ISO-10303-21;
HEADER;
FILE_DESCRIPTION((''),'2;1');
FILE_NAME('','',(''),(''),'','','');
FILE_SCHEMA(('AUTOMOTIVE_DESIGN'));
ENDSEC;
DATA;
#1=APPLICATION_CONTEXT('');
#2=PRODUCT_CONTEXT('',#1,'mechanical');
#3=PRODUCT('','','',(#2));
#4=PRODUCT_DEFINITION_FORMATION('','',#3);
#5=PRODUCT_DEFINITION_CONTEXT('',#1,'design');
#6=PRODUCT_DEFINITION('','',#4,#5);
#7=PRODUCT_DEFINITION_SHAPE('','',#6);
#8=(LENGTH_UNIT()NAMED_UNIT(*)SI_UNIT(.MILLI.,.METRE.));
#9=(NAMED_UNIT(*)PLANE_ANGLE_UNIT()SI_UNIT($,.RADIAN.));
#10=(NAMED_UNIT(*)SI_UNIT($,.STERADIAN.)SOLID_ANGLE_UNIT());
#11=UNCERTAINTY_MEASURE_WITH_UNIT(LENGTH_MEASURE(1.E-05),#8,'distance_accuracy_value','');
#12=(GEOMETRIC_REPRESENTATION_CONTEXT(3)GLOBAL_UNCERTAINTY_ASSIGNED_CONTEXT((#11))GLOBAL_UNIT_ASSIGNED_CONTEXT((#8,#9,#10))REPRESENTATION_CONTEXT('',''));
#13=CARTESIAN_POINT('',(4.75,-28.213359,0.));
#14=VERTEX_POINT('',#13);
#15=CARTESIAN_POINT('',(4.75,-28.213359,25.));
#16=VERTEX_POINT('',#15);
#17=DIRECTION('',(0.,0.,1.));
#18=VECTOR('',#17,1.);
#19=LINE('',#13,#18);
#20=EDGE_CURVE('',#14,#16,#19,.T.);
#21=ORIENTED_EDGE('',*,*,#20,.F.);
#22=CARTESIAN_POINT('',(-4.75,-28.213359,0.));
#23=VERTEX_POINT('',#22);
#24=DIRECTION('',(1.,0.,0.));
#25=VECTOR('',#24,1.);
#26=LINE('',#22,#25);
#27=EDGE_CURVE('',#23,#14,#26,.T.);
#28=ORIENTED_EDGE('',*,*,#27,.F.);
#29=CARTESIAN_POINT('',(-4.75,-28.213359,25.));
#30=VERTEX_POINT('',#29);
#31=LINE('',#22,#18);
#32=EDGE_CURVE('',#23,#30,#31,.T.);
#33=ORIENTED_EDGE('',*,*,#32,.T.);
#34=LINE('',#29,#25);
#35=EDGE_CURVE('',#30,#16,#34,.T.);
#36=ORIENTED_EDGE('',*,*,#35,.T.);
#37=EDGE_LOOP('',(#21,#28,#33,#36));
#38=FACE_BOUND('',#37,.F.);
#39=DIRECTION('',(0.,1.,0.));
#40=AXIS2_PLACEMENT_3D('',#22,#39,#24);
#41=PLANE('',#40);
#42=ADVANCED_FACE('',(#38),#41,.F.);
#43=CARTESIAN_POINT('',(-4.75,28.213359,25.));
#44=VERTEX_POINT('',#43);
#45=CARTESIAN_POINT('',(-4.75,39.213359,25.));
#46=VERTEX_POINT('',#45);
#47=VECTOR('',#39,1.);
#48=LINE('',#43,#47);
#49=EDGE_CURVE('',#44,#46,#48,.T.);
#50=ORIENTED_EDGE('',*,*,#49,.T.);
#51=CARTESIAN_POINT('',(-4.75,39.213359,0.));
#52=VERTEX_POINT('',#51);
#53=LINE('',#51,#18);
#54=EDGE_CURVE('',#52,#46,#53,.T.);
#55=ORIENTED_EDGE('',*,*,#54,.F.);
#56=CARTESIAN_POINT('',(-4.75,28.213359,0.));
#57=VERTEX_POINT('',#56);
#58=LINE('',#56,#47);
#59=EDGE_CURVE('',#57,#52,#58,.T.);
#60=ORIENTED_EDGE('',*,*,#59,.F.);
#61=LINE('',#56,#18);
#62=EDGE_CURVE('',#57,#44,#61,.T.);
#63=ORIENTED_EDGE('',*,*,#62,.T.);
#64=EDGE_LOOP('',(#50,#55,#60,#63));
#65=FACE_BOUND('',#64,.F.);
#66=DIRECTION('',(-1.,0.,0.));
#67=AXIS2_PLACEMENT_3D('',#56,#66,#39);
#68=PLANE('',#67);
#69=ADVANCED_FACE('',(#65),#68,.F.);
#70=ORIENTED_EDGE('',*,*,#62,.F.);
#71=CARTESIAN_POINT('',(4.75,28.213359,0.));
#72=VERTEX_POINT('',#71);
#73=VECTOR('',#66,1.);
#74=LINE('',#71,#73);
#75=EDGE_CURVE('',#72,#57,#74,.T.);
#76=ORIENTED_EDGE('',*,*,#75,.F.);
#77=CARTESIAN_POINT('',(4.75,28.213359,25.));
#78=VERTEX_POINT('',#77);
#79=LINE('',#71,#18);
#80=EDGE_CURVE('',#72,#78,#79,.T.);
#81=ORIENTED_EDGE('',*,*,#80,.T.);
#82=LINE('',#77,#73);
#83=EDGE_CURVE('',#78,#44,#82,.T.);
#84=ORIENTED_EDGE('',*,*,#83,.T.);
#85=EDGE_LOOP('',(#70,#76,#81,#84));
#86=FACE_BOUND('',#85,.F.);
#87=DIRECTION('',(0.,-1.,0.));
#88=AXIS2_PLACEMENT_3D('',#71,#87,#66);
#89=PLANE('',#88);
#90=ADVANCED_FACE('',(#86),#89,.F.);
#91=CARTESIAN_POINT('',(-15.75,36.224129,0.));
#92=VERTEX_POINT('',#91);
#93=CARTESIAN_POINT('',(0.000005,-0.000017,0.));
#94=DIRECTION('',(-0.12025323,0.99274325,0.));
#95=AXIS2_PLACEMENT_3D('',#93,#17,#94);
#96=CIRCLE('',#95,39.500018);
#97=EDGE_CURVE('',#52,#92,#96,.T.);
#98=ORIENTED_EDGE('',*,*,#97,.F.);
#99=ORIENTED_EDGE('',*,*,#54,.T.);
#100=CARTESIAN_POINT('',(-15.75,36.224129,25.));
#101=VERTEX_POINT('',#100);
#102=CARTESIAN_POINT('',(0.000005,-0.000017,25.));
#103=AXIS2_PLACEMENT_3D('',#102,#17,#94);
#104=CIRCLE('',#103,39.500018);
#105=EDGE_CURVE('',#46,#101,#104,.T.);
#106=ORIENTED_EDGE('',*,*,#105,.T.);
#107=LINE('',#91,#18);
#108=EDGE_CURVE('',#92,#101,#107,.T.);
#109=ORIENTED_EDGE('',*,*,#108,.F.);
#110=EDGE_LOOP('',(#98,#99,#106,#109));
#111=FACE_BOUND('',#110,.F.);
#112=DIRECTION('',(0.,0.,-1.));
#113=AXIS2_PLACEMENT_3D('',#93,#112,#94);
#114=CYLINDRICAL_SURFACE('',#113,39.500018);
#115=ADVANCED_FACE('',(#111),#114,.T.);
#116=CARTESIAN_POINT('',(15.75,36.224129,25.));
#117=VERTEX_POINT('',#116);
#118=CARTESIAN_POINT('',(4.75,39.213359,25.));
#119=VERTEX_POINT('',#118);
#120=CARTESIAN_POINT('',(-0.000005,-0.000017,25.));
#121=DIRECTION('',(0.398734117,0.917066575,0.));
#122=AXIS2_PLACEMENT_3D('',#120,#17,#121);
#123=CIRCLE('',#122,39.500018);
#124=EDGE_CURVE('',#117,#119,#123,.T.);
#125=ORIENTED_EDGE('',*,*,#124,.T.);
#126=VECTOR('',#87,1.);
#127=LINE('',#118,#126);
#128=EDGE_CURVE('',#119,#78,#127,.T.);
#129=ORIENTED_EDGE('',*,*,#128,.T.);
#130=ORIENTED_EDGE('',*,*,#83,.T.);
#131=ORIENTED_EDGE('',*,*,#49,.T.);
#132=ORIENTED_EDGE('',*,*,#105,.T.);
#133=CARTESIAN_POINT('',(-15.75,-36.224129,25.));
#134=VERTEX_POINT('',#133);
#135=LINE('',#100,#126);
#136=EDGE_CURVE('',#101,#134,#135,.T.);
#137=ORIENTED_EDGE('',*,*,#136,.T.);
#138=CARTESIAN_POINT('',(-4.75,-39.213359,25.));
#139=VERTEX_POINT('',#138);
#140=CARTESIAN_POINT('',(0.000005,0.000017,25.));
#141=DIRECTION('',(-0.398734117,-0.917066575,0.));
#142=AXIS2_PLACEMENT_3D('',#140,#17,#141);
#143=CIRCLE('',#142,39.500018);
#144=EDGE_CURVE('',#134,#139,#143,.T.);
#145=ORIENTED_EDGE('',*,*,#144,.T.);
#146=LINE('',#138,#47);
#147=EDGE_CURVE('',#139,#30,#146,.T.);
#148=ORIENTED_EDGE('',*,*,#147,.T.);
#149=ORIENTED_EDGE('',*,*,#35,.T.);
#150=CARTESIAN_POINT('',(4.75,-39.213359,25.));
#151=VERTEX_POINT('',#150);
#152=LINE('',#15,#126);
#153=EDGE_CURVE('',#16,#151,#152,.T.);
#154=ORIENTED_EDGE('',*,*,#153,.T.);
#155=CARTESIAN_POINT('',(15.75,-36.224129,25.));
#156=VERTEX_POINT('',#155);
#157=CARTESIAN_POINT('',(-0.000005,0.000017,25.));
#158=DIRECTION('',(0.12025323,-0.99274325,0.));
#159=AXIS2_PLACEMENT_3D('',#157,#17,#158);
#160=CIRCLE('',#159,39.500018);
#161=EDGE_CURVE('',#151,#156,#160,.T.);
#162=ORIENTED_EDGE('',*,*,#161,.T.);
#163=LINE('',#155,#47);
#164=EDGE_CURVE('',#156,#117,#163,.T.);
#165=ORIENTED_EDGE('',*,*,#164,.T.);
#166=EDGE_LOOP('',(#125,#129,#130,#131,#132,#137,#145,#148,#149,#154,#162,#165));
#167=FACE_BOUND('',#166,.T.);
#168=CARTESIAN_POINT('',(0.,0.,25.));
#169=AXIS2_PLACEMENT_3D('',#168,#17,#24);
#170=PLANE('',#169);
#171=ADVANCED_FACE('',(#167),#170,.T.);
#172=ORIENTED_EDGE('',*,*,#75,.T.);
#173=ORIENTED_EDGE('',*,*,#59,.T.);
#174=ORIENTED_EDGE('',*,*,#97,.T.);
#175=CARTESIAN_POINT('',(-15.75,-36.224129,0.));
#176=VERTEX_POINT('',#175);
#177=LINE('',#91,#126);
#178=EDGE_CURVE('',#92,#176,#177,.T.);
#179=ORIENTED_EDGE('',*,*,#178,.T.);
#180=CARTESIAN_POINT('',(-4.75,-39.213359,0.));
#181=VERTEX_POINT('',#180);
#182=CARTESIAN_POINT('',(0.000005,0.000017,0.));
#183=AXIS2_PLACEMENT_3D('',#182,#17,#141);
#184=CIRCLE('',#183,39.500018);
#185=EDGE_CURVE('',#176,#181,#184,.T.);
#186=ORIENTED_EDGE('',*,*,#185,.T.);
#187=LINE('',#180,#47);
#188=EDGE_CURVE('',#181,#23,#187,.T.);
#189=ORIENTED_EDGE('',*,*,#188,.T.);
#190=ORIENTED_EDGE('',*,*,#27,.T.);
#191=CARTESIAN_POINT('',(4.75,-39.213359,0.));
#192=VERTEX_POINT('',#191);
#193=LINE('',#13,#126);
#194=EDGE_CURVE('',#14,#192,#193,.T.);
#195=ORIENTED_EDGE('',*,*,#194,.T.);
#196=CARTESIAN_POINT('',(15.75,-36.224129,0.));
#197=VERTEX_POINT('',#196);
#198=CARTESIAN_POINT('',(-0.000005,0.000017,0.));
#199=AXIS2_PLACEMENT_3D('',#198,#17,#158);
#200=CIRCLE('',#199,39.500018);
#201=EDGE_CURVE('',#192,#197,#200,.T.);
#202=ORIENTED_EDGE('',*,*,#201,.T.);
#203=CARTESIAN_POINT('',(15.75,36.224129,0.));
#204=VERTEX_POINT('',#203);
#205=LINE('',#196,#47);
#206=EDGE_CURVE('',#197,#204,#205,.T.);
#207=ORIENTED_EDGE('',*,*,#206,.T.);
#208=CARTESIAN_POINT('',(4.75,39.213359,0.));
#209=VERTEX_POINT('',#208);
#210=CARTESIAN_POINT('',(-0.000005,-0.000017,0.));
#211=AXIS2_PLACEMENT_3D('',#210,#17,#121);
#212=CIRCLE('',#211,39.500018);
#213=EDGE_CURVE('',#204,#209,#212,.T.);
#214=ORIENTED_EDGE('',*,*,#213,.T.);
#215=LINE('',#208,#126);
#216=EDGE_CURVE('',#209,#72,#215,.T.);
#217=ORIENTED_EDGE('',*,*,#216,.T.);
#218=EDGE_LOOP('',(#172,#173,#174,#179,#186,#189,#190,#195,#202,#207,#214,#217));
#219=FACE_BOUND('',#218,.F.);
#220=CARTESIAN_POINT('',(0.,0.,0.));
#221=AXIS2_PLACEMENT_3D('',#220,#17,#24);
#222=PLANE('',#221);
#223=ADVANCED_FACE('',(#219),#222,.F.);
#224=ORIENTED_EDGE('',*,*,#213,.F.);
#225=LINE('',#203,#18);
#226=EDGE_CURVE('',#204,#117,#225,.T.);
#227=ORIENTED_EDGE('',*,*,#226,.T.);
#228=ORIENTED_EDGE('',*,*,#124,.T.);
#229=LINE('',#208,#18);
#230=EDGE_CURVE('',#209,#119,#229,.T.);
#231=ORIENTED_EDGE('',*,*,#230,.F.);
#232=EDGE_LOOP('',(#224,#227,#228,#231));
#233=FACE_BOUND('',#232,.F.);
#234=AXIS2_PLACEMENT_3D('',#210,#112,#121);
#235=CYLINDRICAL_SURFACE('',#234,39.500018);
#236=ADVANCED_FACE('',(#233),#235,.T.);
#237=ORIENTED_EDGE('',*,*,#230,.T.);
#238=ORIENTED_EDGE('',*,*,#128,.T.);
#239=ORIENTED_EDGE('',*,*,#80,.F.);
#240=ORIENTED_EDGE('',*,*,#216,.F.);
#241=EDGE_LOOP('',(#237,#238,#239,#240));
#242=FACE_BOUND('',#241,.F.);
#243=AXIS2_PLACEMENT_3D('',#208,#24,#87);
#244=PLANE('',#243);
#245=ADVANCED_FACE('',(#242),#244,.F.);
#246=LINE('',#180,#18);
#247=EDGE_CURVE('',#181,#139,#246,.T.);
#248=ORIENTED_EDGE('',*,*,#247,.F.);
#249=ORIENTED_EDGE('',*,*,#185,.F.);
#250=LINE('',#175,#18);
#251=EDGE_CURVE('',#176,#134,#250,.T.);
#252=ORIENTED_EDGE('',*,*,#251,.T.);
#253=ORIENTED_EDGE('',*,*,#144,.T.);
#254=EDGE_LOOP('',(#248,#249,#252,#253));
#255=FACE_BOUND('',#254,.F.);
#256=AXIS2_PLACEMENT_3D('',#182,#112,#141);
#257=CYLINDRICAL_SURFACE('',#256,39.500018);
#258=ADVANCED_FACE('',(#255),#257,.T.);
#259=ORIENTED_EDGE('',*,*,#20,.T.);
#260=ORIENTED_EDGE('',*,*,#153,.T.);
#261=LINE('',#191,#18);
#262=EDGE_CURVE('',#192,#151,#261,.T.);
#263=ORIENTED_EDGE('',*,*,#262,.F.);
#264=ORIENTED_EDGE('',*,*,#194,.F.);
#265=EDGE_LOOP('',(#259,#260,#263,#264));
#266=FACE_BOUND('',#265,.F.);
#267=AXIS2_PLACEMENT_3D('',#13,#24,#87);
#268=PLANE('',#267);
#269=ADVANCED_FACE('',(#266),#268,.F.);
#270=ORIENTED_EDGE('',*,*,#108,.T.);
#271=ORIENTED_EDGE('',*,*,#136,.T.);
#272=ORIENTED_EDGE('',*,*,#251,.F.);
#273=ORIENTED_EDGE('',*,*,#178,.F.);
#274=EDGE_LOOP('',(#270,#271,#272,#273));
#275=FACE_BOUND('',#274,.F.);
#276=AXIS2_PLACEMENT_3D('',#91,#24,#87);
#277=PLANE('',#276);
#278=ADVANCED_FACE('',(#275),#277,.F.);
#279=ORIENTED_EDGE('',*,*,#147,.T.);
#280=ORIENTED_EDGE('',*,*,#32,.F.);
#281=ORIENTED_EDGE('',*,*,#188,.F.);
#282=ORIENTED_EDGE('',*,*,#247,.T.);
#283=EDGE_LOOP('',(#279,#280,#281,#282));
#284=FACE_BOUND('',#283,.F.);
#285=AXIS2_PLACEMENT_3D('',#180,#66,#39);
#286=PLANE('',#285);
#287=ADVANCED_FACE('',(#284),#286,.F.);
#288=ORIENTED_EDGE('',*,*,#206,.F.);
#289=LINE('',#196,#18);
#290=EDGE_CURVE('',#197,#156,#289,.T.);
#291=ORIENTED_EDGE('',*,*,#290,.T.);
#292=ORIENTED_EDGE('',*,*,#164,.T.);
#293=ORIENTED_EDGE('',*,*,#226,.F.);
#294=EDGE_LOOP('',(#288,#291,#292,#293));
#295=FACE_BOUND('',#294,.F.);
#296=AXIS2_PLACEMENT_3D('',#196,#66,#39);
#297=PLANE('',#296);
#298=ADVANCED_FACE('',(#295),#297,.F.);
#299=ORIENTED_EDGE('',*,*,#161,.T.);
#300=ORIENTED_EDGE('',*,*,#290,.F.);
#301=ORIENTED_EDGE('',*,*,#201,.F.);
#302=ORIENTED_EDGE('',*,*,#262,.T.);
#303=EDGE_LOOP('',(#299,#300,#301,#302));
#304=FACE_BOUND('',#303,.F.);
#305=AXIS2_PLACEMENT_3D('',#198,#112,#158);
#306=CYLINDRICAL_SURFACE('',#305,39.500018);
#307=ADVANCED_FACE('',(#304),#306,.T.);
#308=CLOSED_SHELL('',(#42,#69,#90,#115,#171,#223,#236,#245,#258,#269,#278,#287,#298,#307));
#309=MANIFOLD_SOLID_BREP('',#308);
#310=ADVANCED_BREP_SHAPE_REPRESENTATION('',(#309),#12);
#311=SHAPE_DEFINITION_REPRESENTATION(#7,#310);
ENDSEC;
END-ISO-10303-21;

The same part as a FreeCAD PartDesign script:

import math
import FreeCAD as App
import Part
import Sketcher
from FreeCAD import Vector

doc = App.newDocument("Part")
body = doc.addObject("PartDesign::Body", "Body")

# Sketch on XY plane
sketch1 = body.newObject("Sketcher::SketchObject", "Sketch")
sketch1.AttachmentSupport = (doc.getObject("XY_Plane"), [""])
sketch1.MapMode = "FlatFace"
sketch1.addGeometry([
    Part.ArcOfCircle(Part.Circle(Vector(0.000005, -0.000017, 0), Vector(0, 0, 1), 39.500018), math.radians(96.906717), math.radians(113.499066)),  # 0
    Part.LineSegment(Vector(-15.75, 36.224129, 0), Vector(-15.75, -36.224129, 0)),  # 1
    Part.ArcOfCircle(Part.Circle(Vector(0.000005, 0.000017, 0), Vector(0, 0, 1), 39.500018), math.radians(-113.499066), math.radians(-96.906717)),  # 2
    Part.LineSegment(Vector(-4.75, -39.213359, 0), Vector(-4.75, -28.213359, 0)),  # 3
    Part.LineSegment(Vector(-4.75, -28.213359, 0), Vector(4.75, -28.213359, 0)),  # 4
    Part.LineSegment(Vector(4.75, -28.213359, 0), Vector(4.75, -39.213359, 0)),  # 5
    Part.ArcOfCircle(Part.Circle(Vector(-0.000005, 0.000017, 0), Vector(0, 0, 1), 39.500018), math.radians(-83.093283), math.radians(-66.500934)),  # 6
    Part.LineSegment(Vector(15.75, -36.224129, 0), Vector(15.75, 36.224129, 0)),  # 7
    Part.ArcOfCircle(Part.Circle(Vector(-0.000005, -0.000017, 0), Vector(0, 0, 1), 39.500018), math.radians(66.500934), math.radians(83.093283)),  # 8
    Part.LineSegment(Vector(4.75, 39.213359, 0), Vector(4.75, 28.213359, 0)),  # 9
    Part.LineSegment(Vector(4.75, 28.213359, 0), Vector(-4.75, 28.213359, 0)),  # 10
    Part.LineSegment(Vector(-4.75, 28.213359, 0), Vector(-4.75, 39.213359, 0)),  # 11
], False)
sketch1.addConstraint([
    Sketcher.Constraint("Coincident", 0, 2, 1, 1),
    Sketcher.Constraint("Coincident", 1, 2, 2, 1),
    Sketcher.Constraint("Coincident", 2, 2, 3, 1),
    Sketcher.Constraint("Coincident", 3, 2, 4, 1),
    Sketcher.Constraint("Coincident", 4, 2, 5, 1),
    Sketcher.Constraint("Coincident", 5, 2, 6, 1),
    Sketcher.Constraint("Coincident", 6, 2, 7, 1),
    Sketcher.Constraint("Coincident", 7, 2, 8, 1),
    Sketcher.Constraint("Coincident", 8, 2, 9, 1),
    Sketcher.Constraint("Coincident", 9, 2, 10, 1),
    Sketcher.Constraint("Coincident", 10, 2, 11, 1),
    Sketcher.Constraint("Coincident", 11, 2, 0, 1),
    Sketcher.Constraint("Vertical", 1),
    Sketcher.Constraint("Vertical", 3),
    Sketcher.Constraint("Horizontal", 4),
    Sketcher.Constraint("Vertical", 5),
    Sketcher.Constraint("Vertical", 7),
    Sketcher.Constraint("Vertical", 9),
    Sketcher.Constraint("Horizontal", 10),
    Sketcher.Constraint("Vertical", 11),
    Sketcher.Constraint("Coincident", 6, 3, 2, 3),
    Sketcher.Constraint("Coincident", 8, 3, 0, 3),
    Sketcher.Constraint("Equal", 0, 2),
    Sketcher.Constraint("Equal", 2, 6),
    Sketcher.Constraint("Equal", 6, 8),
    Sketcher.Constraint("Symmetric", 0, 3, 2, 3, -1, 1),
    Sketcher.Constraint("Symmetric", 3, 2, 9, 2, -1, 1),
    Sketcher.Constraint("Symmetric", 2, 2, 5, 2, -2),
    Sketcher.Constraint("Horizontal", 1, 2, 6, 2),
    Sketcher.Constraint("Horizontal", 8, 2, 11, 2),
    Sketcher.Constraint("DistanceY", 3, 1, 3, 2, 11.0),
    Sketcher.Constraint("DistanceX", 4, 1, 4, 2, 9.5),
    Sketcher.Constraint("DistanceX", 1, 2, 2, 2, 11.0),
    Sketcher.Constraint("Radius", 0, 39.500018),
    Sketcher.Constraint("DistanceY", 1, 2, 1, 1, 72.448258),
])
pad1 = body.newObject("PartDesign::Pad", "Pad")
pad1.Profile = sketch1
pad1.Length = 25

doc.recompute()
